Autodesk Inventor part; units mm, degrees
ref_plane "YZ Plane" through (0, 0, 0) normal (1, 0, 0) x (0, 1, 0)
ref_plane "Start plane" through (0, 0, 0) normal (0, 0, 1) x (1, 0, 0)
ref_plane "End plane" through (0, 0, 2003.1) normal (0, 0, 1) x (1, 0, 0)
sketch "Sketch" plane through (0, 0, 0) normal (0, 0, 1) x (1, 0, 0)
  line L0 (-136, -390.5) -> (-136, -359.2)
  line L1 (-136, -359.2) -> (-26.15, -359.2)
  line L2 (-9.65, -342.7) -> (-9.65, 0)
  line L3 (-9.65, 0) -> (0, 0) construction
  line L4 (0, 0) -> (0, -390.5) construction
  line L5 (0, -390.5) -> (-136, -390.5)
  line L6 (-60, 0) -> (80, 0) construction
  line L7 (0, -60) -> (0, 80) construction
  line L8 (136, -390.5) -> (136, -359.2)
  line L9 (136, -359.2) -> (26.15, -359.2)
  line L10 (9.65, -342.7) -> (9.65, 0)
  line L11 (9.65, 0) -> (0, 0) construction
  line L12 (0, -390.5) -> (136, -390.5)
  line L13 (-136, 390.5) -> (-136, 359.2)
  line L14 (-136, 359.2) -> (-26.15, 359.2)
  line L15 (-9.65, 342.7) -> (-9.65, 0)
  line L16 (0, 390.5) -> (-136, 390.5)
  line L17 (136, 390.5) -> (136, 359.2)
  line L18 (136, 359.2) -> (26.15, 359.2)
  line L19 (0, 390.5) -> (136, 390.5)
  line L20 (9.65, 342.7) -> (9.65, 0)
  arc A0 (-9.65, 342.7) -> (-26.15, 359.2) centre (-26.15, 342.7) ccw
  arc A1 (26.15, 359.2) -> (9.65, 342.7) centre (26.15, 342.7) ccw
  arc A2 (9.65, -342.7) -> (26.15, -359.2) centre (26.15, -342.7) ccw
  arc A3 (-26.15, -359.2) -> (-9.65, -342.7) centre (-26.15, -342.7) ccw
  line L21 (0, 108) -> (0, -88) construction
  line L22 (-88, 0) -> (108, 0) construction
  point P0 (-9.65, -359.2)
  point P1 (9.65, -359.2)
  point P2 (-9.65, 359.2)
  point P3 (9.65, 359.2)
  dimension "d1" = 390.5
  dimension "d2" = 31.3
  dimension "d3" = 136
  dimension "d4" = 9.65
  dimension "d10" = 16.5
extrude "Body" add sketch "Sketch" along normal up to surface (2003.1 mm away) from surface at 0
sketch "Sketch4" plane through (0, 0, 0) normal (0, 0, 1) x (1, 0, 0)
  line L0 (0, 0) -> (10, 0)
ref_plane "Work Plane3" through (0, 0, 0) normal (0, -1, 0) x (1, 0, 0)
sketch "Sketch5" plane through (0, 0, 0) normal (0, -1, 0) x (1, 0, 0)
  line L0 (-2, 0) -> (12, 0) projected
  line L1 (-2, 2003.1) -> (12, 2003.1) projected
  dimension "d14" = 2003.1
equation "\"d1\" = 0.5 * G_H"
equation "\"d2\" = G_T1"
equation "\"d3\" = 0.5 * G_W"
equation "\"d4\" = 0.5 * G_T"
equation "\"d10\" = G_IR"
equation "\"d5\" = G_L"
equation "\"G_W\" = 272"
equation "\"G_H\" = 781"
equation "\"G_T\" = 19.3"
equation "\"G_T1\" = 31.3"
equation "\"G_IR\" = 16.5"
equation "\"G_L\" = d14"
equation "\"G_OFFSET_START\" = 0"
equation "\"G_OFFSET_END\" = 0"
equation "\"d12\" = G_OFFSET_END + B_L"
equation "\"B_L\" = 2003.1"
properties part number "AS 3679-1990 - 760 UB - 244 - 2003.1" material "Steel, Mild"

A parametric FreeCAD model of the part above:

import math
import FreeCAD as App
import Part
import Sketcher

V = App.Vector
Q = App.Units.Quantity

doc = App.newDocument("Part")
body = doc.addObject("PartDesign::Body", "Body")

# Sketch on XY plane
sketch1 = body.newObject("Sketcher::SketchObject", "Sketch")
sketch1.AttachmentSupport = (doc.getObject("XY_Plane"), [""])
sketch1.MapMode = "FlatFace"
sketch1.addGeometry([
    Part.LineSegment(V(-136, -359, 0), V(-136, -390, 0)),  # 0
    Part.LineSegment(V(-136, -390, 0), V(136, -390, 0)),  # 1
    Part.LineSegment(V(136, -390, 0), V(136, -359, 0)),  # 2
    Part.LineSegment(V(136, -359, 0), V(26, -359, 0)),  # 3
    Part.ArcOfCircle(Part.Circle(V(26, -343, 0), V(0, 0, 1), 16), math.radians(180), math.radians(270)),  # 4
    Part.LineSegment(V(10, -343, 0), V(10, 343, 0)),  # 5
    Part.ArcOfCircle(Part.Circle(V(26, 343, 0), V(0, 0, 1), 16), math.radians(90), math.radians(180)),  # 6
    Part.LineSegment(V(26, 359, 0), V(136, 359, 0)),  # 7
    Part.LineSegment(V(136, 359, 0), V(136, 390, 0)),  # 8
    Part.LineSegment(V(136, 390, 0), V(-136, 390, 0)),  # 9
    Part.LineSegment(V(-136, 390, 0), V(-136, 359, 0)),  # 10
    Part.LineSegment(V(-136, 359, 0), V(-26, 359, 0)),  # 11
    Part.ArcOfCircle(Part.Circle(V(-26, 343, 0), V(0, 0, 1), 16), math.radians(0), math.radians(90)),  # 12
    Part.LineSegment(V(-10, 343, 0), V(-10, -343, 0)),  # 13
    Part.ArcOfCircle(Part.Circle(V(-26, -343, 0), V(0, 0, 1), 16), math.radians(-90), math.radians(0)),  # 14
    Part.LineSegment(V(-26, -359, 0), V(-136, -359, 0)),  # 15
], False)
sketch1.addConstraint([
    Sketcher.Constraint("Coincident", 0, 2, 1, 1),
    Sketcher.Constraint("Coincident", 1, 2, 2, 1),
    Sketcher.Constraint("Coincident", 2, 2, 3, 1),
    Sketcher.Constraint("Tangent", 3, 2, 4, 2),
    Sketcher.Constraint("Tangent", 4, 1, 5, 1),
    Sketcher.Constraint("Tangent", 5, 2, 6, 2),
    Sketcher.Constraint("Tangent", 6, 1, 7, 1),
    Sketcher.Constraint("Coincident", 7, 2, 8, 1),
    Sketcher.Constraint("Coincident", 8, 2, 9, 1),
    Sketcher.Constraint("Coincident", 9, 2, 10, 1),
    Sketcher.Constraint("Coincident", 10, 2, 11, 1),
    Sketcher.Constraint("Tangent", 11, 2, 12, 2),
    Sketcher.Constraint("Tangent", 12, 1, 13, 1),
    Sketcher.Constraint("Tangent", 13, 2, 14, 2),
    Sketcher.Constraint("Tangent", 14, 1, 15, 1),
    Sketcher.Constraint("Coincident", 15, 2, 0, 1),
    Sketcher.Constraint("Vertical", 0),
    Sketcher.Constraint("Horizontal", 1),
    Sketcher.Constraint("Vertical", 2),
    Sketcher.Constraint("Horizontal", 3),
    Sketcher.Constraint("Vertical", 5),
    Sketcher.Constraint("Horizontal", 7),
    Sketcher.Constraint("Vertical", 8),
    Sketcher.Constraint("Horizontal", 9),
    Sketcher.Constraint("Vertical", 10),
    Sketcher.Constraint("Horizontal", 11),
    Sketcher.Constraint("Vertical", 13),
    Sketcher.Constraint("Horizontal", 15),
    Sketcher.Constraint("Equal", 4, 6),
    Sketcher.Constraint("Equal", 6, 12),
    Sketcher.Constraint("Equal", 12, 14),
    Sketcher.Constraint("Symmetric", 4, 3, 12, 3, -1, 1),
    Sketcher.Constraint("Symmetric", 0, 2, 8, 2, -1, 1),
    Sketcher.Constraint("Symmetric", 7, 2, 10, 2, -2),
    Sketcher.Constraint("Symmetric", 2, 2, 15, 2, -2),
    Sketcher.Constraint("Radius", 4, Q("16.5 mm")),
    Sketcher.Constraint("DistanceY", 0, 2, 0, 1, Q("31.3 mm")),
    Sketcher.Constraint("DistanceX", 0, 2, -1, 1, Q("136 mm")),
    Sketcher.Constraint("DistanceY", 0, 2, -1, 1, Q("390.5 mm")),
    Sketcher.Constraint("DistanceX", -1, 1, 4, 1, Q("9.65 mm")),
])
pad1 = body.newObject("PartDesign::Pad", "Pad")
pad1.Profile = sketch1
pad1.Length = 2003.1

doc.recompute()
